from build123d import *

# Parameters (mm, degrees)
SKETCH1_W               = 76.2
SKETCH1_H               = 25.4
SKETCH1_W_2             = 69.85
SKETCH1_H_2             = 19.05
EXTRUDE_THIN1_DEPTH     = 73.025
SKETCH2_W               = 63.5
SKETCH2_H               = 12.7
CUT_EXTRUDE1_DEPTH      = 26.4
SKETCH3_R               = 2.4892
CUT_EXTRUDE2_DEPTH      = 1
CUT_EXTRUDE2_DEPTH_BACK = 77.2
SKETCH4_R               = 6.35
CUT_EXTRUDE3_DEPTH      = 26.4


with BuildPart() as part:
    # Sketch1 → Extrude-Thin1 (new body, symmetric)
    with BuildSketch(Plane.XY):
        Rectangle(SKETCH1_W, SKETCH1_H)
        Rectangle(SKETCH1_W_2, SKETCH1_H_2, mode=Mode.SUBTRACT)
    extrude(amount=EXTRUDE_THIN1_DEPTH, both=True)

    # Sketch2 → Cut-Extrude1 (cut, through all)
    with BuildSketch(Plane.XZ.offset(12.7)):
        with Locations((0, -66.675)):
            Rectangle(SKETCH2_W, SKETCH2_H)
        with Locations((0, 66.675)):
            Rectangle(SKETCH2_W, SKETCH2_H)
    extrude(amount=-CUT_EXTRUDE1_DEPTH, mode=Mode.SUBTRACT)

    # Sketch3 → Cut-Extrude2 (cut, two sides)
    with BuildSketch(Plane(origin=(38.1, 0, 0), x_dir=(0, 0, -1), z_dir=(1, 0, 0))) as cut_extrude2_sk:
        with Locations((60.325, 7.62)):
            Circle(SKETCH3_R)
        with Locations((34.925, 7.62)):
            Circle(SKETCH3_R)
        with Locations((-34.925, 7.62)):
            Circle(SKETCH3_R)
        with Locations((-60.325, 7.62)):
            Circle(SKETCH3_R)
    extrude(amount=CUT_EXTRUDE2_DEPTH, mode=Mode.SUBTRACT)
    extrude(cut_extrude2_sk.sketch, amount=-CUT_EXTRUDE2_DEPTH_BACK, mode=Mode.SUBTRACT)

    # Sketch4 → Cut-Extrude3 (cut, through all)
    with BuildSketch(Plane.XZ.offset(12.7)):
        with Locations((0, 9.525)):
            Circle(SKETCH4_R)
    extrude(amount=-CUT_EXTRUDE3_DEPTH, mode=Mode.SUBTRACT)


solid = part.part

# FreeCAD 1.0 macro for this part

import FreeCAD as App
import Part
import Sketcher

V = App.Vector
Q = App.Units.Quantity


def add_polygon(sketch, points):
    """Adds a closed chain of lines whose ends are joined by coincident constraints."""
    first, n = sketch.GeometryCount, len(points)
    for a, b in zip(points, points[1:] + points[:1]):
        sketch.addGeometry(Part.LineSegment(App.Vector(*a, 0), App.Vector(*b, 0)), False)
    for i in range(n):
        sketch.addConstraint(Sketcher.Constraint("Coincident", first + i, 2, first + (i + 1) % n, 1))

doc = App.newDocument("Part")
body = doc.addObject("PartDesign::Body", "Body")

# Sketch on XY plane
sketch1 = body.newObject("Sketcher::SketchObject", "Sketch")
sketch1.AttachmentSupport = (doc.getObject("XY_Plane"), [""])
sketch1.MapMode = "FlatFace"
add_polygon(sketch1, [(-38, 13), (-38, -13), (38, -13), (38, 13)])  # lines 0-3
add_polygon(sketch1, [(35, -10), (-35, -10), (-35, 10), (35, 10)])  # lines 4-7
sketch1.addConstraint([
    Sketcher.Constraint("Vertical", 0),
    Sketcher.Constraint("Horizontal", 1),
    Sketcher.Constraint("Vertical", 2),
    Sketcher.Constraint("Horizontal", 3),
    Sketcher.Constraint("Horizontal", 4),
    Sketcher.Constraint("Vertical", 5),
    Sketcher.Constraint("Horizontal", 6),
    Sketcher.Constraint("Vertical", 7),
    Sketcher.Constraint("Symmetric", 0, 2, 2, 2, -1, 1),
    Sketcher.Constraint("Symmetric", 4, 2, 6, 2, -1, 1),
    Sketcher.Constraint("DistanceX", 1, 1, 1, 2, Q("3 in")),
    Sketcher.Constraint("DistanceY", 0, 2, 0, 1, Q("1 in")),
    Sketcher.Constraint("DistanceX", 4, 2, 4, 1, Q("2.75 in")),
    Sketcher.Constraint("DistanceY", 5, 1, 5, 2, Q("0.75 in")),
])
pad1 = body.newObject("PartDesign::Pad", "Pad")
pad1.Profile = sketch1
pad1.Length = Q("5.75 in")
pad1.Midplane = True

# Sketch on XZ plane
sketch2 = body.newObject("Sketcher::SketchObject", "Sketch001")
sketch2.AttachmentSupport = (doc.getObject("XZ_Plane"), [""])
sketch2.MapMode = "FlatFace"
sketch2.AttachmentOffset = App.Placement(V(0, 0, 0.5 * 25.4), App.Rotation())
add_polygon(sketch2, [(-32, -60), (-32, -73), (32, -73), (32, -60)])  # lines 0-3
add_polygon(sketch2, [(-32, 73), (-32, 60), (32, 60), (32, 73)])  # lines 4-7
sketch2.addConstraint([
    Sketcher.Constraint("Vertical", 0),
    Sketcher.Constraint("Horizontal", 1),
    Sketcher.Constraint("Vertical", 2),
    Sketcher.Constraint("Horizontal", 3),
    Sketcher.Constraint("Vertical", 4),
    Sketcher.Constraint("Horizontal", 5),
    Sketcher.Constraint("Vertical", 6),
    Sketcher.Constraint("Horizontal", 7),
    Sketcher.Constraint("Symmetric", 2, 2, 4, 2, -1, 1),
    Sketcher.Constraint("Symmetric", 0, 2, 6, 2, -1, 1),
    Sketcher.Constraint("Vertical", 3, 2, 4, 2),
    Sketcher.Constraint("DistanceX", 1, 1, 1, 2, Q("2.5 in")),
    Sketcher.Constraint("DistanceY", 0, 2, 0, 1, Q("0.5 in")),
    Sketcher.Constraint("DistanceY", 3, 2, 4, 2, Q("4.75 in")),
])
pocket1 = body.newObject("PartDesign::Pocket", "Pocket")
pocket1.Profile = sketch2
pocket1.Type = "ThroughAll"

# Sketch on YZ plane
sketch3 = body.newObject("Sketcher::SketchObject", "Sketch002")
sketch3.AttachmentSupport = (doc.getObject("YZ_Plane"), [""])
sketch3.MapMode = "FlatFace"
sketch3.AttachmentOffset = App.Placement(V(0, 0, 1.5 * 25.4), App.Rotation())
sketch3.addGeometry([
    Part.Circle(V(7.6, -60.3, 0), V(0, 0, 1), 2.5),
    Part.Circle(V(7.6, -34.9, 0), V(0, 0, 1), 2.5),
    Part.Circle(V(7.6, 34.9, 0), V(0, 0, 1), 2.5),
    Part.Circle(V(7.6, 60.3, 0), V(0, 0, 1), 2.5),
], False)
sketch3.addConstraint([
    Sketcher.Constraint("Equal", 0, 1),
    Sketcher.Constraint("Equal", 1, 2),
    Sketcher.Constraint("Equal", 2, 3),
    Sketcher.Constraint("Symmetric", 1, 3, 2, 3, -1),
    Sketcher.Constraint("Symmetric", 0, 3, 3, 3, -1),
    Sketcher.Constraint("Vertical", 0, 3, 1, 3),
    Sketcher.Constraint("Diameter", 0, Q("0.196 in")),
    Sketcher.Constraint("DistanceY", 0, 3, 1, 3, Q("1 in")),
    Sketcher.Constraint("DistanceX", -1, 1, 0, 3, Q("0.3 in")),
    Sketcher.Constraint("DistanceY", 1, 3, 2, 3, Q("2.75 in")),
])
pocket2 = body.newObject("PartDesign::Pocket", "Pocket001")
pocket2.Profile = sketch3
pocket2.Type = "ThroughAll"
pocket2.Midplane = True

# Sketch on XZ plane
sketch4 = body.newObject("Sketcher::SketchObject", "Sketch003")
sketch4.AttachmentSupport = (doc.getObject("XZ_Plane"), [""])
sketch4.MapMode = "FlatFace"
sketch4.AttachmentOffset = App.Placement(V(0, 0, 0.5 * 25.4), App.Rotation())
sketch4.addGeometry(Part.Circle(V(0, 10, 0), V(0, 0, 1), 6), False)
sketch4.addConstraint([
    Sketcher.Constraint("PointOnObject", 0, 3, -2),
    Sketcher.Constraint("Diameter", 0, Q("0.5 in")),
    Sketcher.Constraint("DistanceY", -1, 1, 0, 3, Q("0.375 in")),
])
pocket3 = body.newObject("PartDesign::Pocket", "Pocket002")
pocket3.Profile = sketch4
pocket3.Type = "ThroughAll"

doc.recompute()
